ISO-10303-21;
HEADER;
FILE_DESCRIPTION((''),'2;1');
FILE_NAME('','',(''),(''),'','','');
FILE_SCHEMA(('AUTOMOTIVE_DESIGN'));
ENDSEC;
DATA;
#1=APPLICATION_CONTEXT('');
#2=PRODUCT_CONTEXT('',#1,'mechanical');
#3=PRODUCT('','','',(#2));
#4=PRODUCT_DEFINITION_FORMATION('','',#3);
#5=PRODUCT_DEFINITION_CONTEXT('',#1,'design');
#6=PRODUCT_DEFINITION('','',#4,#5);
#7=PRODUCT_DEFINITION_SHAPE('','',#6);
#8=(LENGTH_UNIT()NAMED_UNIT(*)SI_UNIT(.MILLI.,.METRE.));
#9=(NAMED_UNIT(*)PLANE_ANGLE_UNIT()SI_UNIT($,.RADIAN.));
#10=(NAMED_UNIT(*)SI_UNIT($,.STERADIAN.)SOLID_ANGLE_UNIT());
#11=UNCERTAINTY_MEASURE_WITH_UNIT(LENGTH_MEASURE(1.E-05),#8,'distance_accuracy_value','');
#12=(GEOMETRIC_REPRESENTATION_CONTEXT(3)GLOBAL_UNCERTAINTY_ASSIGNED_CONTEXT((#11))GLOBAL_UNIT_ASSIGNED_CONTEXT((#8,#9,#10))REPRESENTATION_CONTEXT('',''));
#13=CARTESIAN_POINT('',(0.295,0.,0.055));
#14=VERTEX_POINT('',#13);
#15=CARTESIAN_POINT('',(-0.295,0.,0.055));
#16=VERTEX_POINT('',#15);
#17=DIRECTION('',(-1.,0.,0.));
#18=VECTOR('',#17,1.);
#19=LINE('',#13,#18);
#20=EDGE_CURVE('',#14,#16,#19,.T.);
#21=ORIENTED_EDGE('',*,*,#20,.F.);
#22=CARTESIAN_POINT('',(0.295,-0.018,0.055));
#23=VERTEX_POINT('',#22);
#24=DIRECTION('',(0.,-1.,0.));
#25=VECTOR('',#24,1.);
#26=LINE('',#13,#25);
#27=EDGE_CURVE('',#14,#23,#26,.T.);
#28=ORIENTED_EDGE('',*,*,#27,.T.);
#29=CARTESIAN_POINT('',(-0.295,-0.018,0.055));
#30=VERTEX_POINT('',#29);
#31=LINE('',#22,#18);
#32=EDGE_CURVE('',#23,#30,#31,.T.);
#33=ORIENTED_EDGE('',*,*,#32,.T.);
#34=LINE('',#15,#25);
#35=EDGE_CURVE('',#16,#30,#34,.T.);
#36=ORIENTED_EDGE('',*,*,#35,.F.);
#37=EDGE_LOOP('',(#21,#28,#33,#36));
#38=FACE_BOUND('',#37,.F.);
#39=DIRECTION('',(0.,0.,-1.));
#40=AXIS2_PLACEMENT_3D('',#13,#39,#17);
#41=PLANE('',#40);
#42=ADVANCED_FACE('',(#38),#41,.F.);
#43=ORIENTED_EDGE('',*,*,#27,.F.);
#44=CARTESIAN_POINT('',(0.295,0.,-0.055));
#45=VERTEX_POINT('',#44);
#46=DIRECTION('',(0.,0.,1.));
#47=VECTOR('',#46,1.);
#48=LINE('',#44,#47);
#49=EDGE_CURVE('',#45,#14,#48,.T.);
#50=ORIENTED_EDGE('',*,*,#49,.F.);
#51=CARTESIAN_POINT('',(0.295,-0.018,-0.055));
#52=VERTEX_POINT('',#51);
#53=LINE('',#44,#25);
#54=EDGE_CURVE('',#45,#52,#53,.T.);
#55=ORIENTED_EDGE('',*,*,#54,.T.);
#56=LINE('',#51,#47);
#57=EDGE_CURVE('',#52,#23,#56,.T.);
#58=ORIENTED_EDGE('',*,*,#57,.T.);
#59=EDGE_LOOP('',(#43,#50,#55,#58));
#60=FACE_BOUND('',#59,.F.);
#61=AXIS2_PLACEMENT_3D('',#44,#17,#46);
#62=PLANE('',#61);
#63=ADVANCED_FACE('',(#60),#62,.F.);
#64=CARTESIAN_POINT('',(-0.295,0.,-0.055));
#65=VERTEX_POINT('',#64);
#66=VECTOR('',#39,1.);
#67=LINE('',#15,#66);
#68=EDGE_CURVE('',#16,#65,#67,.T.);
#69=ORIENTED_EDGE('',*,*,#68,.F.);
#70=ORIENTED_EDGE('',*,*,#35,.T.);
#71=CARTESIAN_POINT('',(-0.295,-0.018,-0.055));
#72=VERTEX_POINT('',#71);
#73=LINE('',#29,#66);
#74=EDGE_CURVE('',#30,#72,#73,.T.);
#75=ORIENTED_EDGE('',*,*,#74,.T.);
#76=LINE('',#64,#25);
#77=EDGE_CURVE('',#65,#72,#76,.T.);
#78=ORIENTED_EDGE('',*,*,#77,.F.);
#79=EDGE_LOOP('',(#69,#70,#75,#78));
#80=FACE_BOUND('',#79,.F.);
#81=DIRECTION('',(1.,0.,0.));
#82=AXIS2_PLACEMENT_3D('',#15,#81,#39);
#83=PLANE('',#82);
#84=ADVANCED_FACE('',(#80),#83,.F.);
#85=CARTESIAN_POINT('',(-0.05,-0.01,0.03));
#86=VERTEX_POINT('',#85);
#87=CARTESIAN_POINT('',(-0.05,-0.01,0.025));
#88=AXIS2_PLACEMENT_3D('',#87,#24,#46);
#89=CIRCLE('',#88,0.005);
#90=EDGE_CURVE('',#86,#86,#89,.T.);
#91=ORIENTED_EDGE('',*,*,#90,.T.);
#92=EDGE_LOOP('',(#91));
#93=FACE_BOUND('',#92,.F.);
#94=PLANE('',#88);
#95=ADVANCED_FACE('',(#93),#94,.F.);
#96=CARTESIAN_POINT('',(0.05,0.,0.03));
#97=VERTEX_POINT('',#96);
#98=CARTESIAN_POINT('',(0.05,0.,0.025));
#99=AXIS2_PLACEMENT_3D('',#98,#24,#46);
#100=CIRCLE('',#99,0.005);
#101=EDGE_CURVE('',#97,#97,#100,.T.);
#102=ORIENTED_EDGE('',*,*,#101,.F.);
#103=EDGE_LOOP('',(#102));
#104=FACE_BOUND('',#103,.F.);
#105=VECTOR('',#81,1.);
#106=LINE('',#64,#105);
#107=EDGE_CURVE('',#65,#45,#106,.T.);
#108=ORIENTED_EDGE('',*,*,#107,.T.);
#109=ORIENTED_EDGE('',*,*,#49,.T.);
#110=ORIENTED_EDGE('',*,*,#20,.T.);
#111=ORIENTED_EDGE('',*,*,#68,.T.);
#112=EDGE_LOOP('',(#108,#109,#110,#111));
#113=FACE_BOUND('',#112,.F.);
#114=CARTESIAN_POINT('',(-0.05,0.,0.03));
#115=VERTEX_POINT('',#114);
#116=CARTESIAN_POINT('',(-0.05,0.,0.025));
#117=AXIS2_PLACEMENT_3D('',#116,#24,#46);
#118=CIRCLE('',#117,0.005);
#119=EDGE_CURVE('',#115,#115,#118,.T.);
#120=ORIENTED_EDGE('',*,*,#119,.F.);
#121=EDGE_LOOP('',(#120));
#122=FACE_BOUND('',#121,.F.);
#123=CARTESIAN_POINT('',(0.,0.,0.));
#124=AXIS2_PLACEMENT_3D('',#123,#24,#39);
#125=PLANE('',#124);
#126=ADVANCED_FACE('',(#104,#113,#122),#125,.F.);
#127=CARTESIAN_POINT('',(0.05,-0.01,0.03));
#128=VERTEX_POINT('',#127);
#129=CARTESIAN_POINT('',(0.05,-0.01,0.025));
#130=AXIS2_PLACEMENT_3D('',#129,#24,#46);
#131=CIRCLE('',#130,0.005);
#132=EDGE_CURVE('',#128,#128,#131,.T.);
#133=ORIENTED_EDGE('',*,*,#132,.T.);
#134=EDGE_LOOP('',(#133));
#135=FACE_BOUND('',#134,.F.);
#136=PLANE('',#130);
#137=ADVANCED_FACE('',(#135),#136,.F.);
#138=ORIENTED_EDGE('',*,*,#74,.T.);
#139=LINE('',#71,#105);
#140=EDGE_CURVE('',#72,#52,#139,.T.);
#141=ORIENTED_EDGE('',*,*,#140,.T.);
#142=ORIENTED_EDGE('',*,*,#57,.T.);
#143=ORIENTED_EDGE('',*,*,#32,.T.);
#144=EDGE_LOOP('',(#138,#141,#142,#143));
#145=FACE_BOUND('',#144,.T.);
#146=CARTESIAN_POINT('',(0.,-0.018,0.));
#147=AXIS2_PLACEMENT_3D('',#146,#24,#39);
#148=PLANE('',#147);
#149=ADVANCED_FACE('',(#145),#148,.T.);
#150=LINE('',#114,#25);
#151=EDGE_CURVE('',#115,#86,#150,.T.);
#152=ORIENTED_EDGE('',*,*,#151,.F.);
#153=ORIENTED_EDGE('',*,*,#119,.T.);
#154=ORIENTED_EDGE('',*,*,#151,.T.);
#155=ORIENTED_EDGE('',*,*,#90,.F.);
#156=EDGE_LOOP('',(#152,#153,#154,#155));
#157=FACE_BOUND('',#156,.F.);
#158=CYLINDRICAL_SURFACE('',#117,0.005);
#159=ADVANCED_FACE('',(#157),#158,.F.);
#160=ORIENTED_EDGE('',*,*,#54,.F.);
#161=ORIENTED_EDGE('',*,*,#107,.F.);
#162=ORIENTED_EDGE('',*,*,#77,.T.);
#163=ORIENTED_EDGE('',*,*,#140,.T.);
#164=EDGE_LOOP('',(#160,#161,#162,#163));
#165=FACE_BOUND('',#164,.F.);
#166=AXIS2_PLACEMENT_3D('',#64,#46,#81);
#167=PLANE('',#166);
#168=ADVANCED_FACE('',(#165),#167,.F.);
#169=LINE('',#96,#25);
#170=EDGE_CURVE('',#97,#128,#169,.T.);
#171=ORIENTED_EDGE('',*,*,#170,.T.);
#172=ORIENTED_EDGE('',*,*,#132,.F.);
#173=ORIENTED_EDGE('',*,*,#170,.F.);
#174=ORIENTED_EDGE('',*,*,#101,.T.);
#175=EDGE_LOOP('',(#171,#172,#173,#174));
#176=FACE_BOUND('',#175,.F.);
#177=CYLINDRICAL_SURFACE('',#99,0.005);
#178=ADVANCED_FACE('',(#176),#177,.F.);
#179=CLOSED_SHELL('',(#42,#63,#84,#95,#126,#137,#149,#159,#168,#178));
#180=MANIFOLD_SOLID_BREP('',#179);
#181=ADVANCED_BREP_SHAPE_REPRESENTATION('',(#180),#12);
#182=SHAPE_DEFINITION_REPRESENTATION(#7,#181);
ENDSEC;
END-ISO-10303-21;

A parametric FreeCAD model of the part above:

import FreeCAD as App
import Part
import Sketcher


def add_polygon(sketch, points):
    """Adds a closed chain of lines whose ends are joined by coincident constraints."""
    first, n = sketch.GeometryCount, len(points)
    for a, b in zip(points, points[1:] + points[:1]):
        sketch.addGeometry(Part.LineSegment(App.Vector(*a, 0), App.Vector(*b, 0)), False)
    for i in range(n):
        sketch.addConstraint(Sketcher.Constraint("Coincident", first + i, 2, first + (i + 1) % n, 1))

doc = App.newDocument("Part")
params = doc.addObject("Spreadsheet::Sheet", "Params")
for row, (alias, value) in enumerate([
    ("sketch1_height", "0.11 mm"),
    ("pad1_length", "0.018 mm"),
    ("sketch2_diameter", "0.01 mm"),
    ("hole_diameter", "0.01 mm"),
    ("hole_depth", "0.01 mm"),
    ("sketch3_diameter", "0.01 mm"),
    ("hole2_diameter", "0.01 mm"),
    ("hole2_depth", "0.01 mm"),
], start=1):
    params.set(f"A{row}", alias)
    params.set(f"B{row}", "=" + value)
    params.setAlias(f"B{row}", alias)

body = doc.addObject("PartDesign::Body", "Body")

sketch1 = body.newObject("Sketcher::SketchObject", "Sketch")
sketch1.AttachmentSupport = (doc.getObject("XZ_Plane"), [""])
sketch1.MapMode = "FlatFace"
add_polygon(sketch1, [(-0.29, 0.06), (-0.29, -0.06), (0.29, -0.06), (0.29, 0.06)])
sketch1.addConstraint([
    Sketcher.Constraint("Vertical", 0),
    Sketcher.Constraint("Horizontal", 1),
    Sketcher.Constraint("Vertical", 2),
    Sketcher.Constraint("Horizontal", 3),
    Sketcher.Constraint("Symmetric", 0, 2, 2, 2, -1, 1),
    Sketcher.Constraint("DistanceX", 0, 2, -1, 1, 0.295),
    Sketcher.Constraint("DistanceY", 0, 2, 0, 1, 0.11),
])
sketch1.setExpression("Constraints[10]", "Params.sketch1_height")
pad1 = body.newObject("PartDesign::Pad", "Pad")
pad1.Profile = sketch1
pad1.setExpression("Length", "Params.pad1_length")

sketch2 = body.newObject("Sketcher::SketchObject", "Sketch001")
sketch2.AttachmentSupport = (doc.getObject("XZ_Plane"), [""])
sketch2.MapMode = "FlatFace"
sketch2.addGeometry(Part.Circle(App.Vector(-0.05, 0.025, 0), App.Vector(0, 0, 1), 0.005), False)
sketch2.addConstraint([
    Sketcher.Constraint("Diameter", 0, 0.01),
    Sketcher.Constraint("DistanceX", 0, 3, -1, 1, 0.05),
    Sketcher.Constraint("DistanceY", -1, 1, 0, 3, 0.025),
])
sketch2.setExpression("Constraints[0]", "Params.sketch2_diameter")
doc.recompute()
hole = body.newObject("PartDesign::Hole", "Hole")
hole.Profile = sketch2
hole.ThreadType = "None"
hole.setExpression("Diameter", "Params.hole_diameter")
hole.DepthType = "Dimension"
hole.setExpression("Depth", "Params.hole_depth")
hole.DrillPoint = "Flat"
hole.Reversed = True

sketch3 = body.newObject("Sketcher::SketchObject", "Sketch002")
sketch3.AttachmentSupport = (doc.getObject("XZ_Plane"), [""])
sketch3.MapMode = "FlatFace"
sketch3.addGeometry(Part.Circle(App.Vector(0.05, 0.025, 0), App.Vector(0, 0, 1), 0.005), False)
sketch3.addConstraint([
    Sketcher.Constraint("Diameter", 0, 0.01),
    Sketcher.Constraint("DistanceX", -1, 1, 0, 3, 0.05),
    Sketcher.Constraint("DistanceY", -1, 1, 0, 3, 0.025),
])
sketch3.setExpression("Constraints[0]", "Params.sketch3_diameter")
doc.recompute()
hole2 = body.newObject("PartDesign::Hole", "Hole001")
hole2.Profile = sketch3
hole2.ThreadType = "None"
hole2.setExpression("Diameter", "Params.hole2_diameter")
hole2.DepthType = "Dimension"
hole2.setExpression("Depth", "Params.hole2_depth")
hole2.DrillPoint = "Flat"
hole2.Reversed = True

doc.recompute()
